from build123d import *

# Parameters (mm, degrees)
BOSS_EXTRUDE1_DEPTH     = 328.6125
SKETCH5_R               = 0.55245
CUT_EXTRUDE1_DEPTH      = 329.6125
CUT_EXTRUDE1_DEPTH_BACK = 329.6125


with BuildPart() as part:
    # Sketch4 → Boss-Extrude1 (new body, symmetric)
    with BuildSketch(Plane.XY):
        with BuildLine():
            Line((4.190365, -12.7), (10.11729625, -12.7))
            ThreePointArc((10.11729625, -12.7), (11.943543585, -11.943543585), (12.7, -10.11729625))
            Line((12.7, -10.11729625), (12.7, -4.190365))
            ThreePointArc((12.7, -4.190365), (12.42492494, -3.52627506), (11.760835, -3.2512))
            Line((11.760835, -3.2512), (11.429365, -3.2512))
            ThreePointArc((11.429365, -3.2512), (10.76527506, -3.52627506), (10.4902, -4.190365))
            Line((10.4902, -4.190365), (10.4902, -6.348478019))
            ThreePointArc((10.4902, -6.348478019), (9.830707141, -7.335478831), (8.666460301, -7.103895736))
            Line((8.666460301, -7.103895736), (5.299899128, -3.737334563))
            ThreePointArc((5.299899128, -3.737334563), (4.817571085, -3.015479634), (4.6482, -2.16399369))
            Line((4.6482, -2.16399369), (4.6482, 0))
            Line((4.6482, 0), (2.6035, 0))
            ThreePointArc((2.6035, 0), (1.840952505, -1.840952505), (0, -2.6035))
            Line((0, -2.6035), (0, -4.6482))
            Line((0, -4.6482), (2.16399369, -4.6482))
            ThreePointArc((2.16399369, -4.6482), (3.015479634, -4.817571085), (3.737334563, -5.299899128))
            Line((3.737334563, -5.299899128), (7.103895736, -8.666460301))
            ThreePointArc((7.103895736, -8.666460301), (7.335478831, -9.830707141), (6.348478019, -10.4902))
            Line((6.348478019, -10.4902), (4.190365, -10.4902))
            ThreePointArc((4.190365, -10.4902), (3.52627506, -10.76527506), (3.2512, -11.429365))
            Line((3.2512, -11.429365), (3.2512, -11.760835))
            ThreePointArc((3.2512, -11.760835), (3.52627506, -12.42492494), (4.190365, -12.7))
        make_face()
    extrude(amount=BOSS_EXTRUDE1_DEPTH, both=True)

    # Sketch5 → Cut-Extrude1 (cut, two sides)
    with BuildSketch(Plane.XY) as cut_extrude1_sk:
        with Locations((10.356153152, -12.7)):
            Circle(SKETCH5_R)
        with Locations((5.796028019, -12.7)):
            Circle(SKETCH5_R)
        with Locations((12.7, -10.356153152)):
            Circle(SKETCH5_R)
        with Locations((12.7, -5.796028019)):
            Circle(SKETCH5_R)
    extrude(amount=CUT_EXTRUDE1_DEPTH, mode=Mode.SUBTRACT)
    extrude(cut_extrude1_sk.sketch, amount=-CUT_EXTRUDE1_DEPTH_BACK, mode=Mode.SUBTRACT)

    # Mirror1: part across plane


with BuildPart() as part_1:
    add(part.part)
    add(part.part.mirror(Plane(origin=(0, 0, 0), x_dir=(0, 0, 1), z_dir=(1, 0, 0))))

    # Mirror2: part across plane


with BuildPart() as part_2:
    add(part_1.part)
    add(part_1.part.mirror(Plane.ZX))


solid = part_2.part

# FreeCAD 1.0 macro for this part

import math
import FreeCAD as App
import Part
import Sketcher
from FreeCAD import Vector
Q = App.Units.Quantity

doc = App.newDocument("Part")
params = doc.addObject("Spreadsheet::Sheet", "Params")
for row, (alias, value) in enumerate([
    ("pad1_length", "25.875 in"),
], start=1):
    params.set(f"A{row}", alias)
    params.set(f"B{row}", "=" + value)
    params.setAlias(f"B{row}", alias)

body = doc.addObject("PartDesign::Body", "Body")

# Sketch on XY plane
sketch1 = body.newObject("Sketcher::SketchObject", "Sketch")
sketch1.AttachmentSupport = (doc.getObject("XY_Plane"), [""])
sketch1.MapMode = "FlatFace"
sketch1.addGeometry([
    Part.LineSegment(Vector(4.190365, -12.7, 0), Vector(10.117296, -12.7, 0)),  # 0
    Part.ArcOfCircle(Part.Circle(Vector(10.117296, -10.117296, 0), Vector(0, 0, 1), 2.582704), math.radians(-90), math.radians(0)),  # 1
    Part.LineSegment(Vector(12.7, -10.117296, 0), Vector(12.7, -4.190365, 0)),  # 2
    Part.ArcOfCircle(Part.Circle(Vector(11.760835, -4.190365, 0), Vector(0, 0, 1), 0.939165), math.radians(0), math.radians(90)),  # 3
    Part.LineSegment(Vector(11.760835, -3.2512, 0), Vector(11.429365, -3.2512, 0)),  # 4
    Part.ArcOfCircle(Part.Circle(Vector(11.429365, -4.190365, 0), Vector(0, 0, 1), 0.939165), math.radians(90), math.radians(180)),  # 5
    Part.LineSegment(Vector(10.4902, -4.190365, 0), Vector(10.4902, -6.348478, 0)),  # 6
    Part.ArcOfCircle(Part.Circle(Vector(9.421878, -6.348478, 0), Vector(0, 0, 1), 1.068322), math.radians(-135), math.radians(0)),  # 7
    Part.LineSegment(Vector(8.66646, -7.103896, 0), Vector(5.299899, -3.737335, 0)),  # 8
    Part.ArcOfCircle(Part.Circle(Vector(6.87324, -2.163994, 0), Vector(0, 0, 1), 2.22504), math.radians(-180), math.radians(-135)),  # 9
    Part.LineSegment(Vector(4.6482, -2.163994, 0), Vector(4.6482, 0, 0)),  # 10
    Part.LineSegment(Vector(4.6482, 0, 0), Vector(2.6035, 0, 0)),  # 11
    Part.ArcOfCircle(Part.Circle(Vector(0, 0, 0), Vector(0, 0, 1), 2.6035), math.radians(-90), math.radians(0)),  # 12
    Part.LineSegment(Vector(0, -2.6035, 0), Vector(0, -4.6482, 0)),  # 13
    Part.LineSegment(Vector(0, -4.6482, 0), Vector(2.163994, -4.6482, 0)),  # 14
    Part.ArcOfCircle(Part.Circle(Vector(2.163994, -6.87324, 0), Vector(0, 0, 1), 2.22504), math.radians(45), math.radians(90)),  # 15
    Part.LineSegment(Vector(3.737335, -5.299899, 0), Vector(7.103896, -8.66646, 0)),  # 16
    Part.ArcOfCircle(Part.Circle(Vector(6.348478, -9.421878, 0), Vector(0, 0, 1), 1.068322), math.radians(-90), math.radians(45)),  # 17
    Part.LineSegment(Vector(6.348478, -10.4902, 0), Vector(4.190365, -10.4902, 0)),  # 18
    Part.ArcOfCircle(Part.Circle(Vector(4.190365, -11.429365, 0), Vector(0, 0, 1), 0.939165), math.radians(90), math.radians(180)),  # 19
    Part.LineSegment(Vector(3.2512, -11.429365, 0), Vector(3.2512, -11.760835, 0)),  # 20
    Part.ArcOfCircle(Part.Circle(Vector(4.190365, -11.760835, 0), Vector(0, 0, 1), 0.939165), math.radians(-180), math.radians(-90)),  # 21
], False)
sketch1.addConstraint([
    Sketcher.Constraint("Tangent", 0, 2, 1, 1),
    Sketcher.Constraint("Tangent", 1, 2, 2, 1),
    Sketcher.Constraint("Tangent", 2, 2, 3, 1),
    Sketcher.Constraint("Tangent", 3, 2, 4, 1),
    Sketcher.Constraint("Tangent", 4, 2, 5, 1),
    Sketcher.Constraint("Tangent", 5, 2, 6, 1),
    Sketcher.Constraint("Tangent", 6, 2, 7, 2),
    Sketcher.Constraint("Tangent", 7, 1, 8, 1),
    Sketcher.Constraint("Tangent", 8, 2, 9, 2),
    Sketcher.Constraint("Tangent", 9, 1, 10, 1),
    Sketcher.Constraint("Coincident", 10, 2, 11, 1),
    Sketcher.Constraint("Coincident", 11, 2, 12, 2),
    Sketcher.Constraint("Coincident", 12, 1, 13, 1),
    Sketcher.Constraint("Coincident", 13, 2, 14, 1),
    Sketcher.Constraint("Tangent", 14, 2, 15, 2),
    Sketcher.Constraint("Tangent", 15, 1, 16, 1),
    Sketcher.Constraint("Tangent", 16, 2, 17, 2),
    Sketcher.Constraint("Tangent", 17, 1, 18, 1),
    Sketcher.Constraint("Tangent", 18, 2, 19, 1),
    Sketcher.Constraint("Tangent", 19, 2, 20, 1),
    Sketcher.Constraint("Tangent", 20, 2, 21, 1),
    Sketcher.Constraint("Tangent", 21, 2, 0, 1),
    Sketcher.Constraint("Horizontal", 0),
    Sketcher.Constraint("Vertical", 2),
    Sketcher.Constraint("Horizontal", 4),
    Sketcher.Constraint("Vertical", 6),
    Sketcher.Constraint("Vertical", 10),
    Sketcher.Constraint("Horizontal", 11),
    Sketcher.Constraint("Vertical", 13),
    Sketcher.Constraint("Horizontal", 14),
    Sketcher.Constraint("Horizontal", 18),
    Sketcher.Constraint("Vertical", 20),
    Sketcher.Constraint("Coincident", 12, 3, -1, 1),
    Sketcher.Constraint("Equal", 3, 5),
    Sketcher.Constraint("Equal", 9, 15),
    Sketcher.Constraint("Equal", 7, 17),
    Sketcher.Constraint("Equal", 5, 19),
    Sketcher.Constraint("Equal", 19, 21),
    Sketcher.Constraint("PointOnObject", 10, 2, -1),
    Sketcher.Constraint("PointOnObject", 12, 1, -2),
    Sketcher.Constraint("Parallel", 8, 16),
    Sketcher.Constraint("Equal", 0, 2),
    Sketcher.Constraint("Equal", 18, 6),
    Sketcher.Constraint("Equal", 14, 10),
    Sketcher.Constraint("Equal", 11, 13),
    Sketcher.Constraint("Equal", 4, 20),
    Sketcher.Constraint("Equal", 8, 16),
    Sketcher.Constraint("DistanceY", 0, 2, -1, 1, Q("0.5 in")),
    Sketcher.Constraint("Radius", 9, Q("0.0876 in")),
    Sketcher.Constraint("Radius", 12, Q("0.1025 in")),
    Sketcher.Constraint("DistanceX", 9, 1, 5, 2, Q("0.23 in")),
    Sketcher.Constraint("DistanceX", 11, 2, 11, 1, Q("0.0805 in")),
    Sketcher.Constraint("DistanceY", 3, 2, -1, 1, Q("0.128 in")),
    Sketcher.Constraint("Radius", 7, Q("1.068322 mm")),
    Sketcher.Constraint("DistanceX", 17, 3, 7, 3, Q("0.121 in")),
    Sketcher.Constraint("Radius", 1, Q("2.582704 mm")),
    Sketcher.Constraint("Radius", 3, Q("0.939165 mm")),
])
pad1 = body.newObject("PartDesign::Pad", "Pad")
pad1.Profile = sketch1
pad1.setExpression("Length", "Params.pad1_length")
pad1.Midplane = True

# Sketch on XY plane
sketch2 = body.newObject("Sketcher::SketchObject", "Sketch001")
sketch2.AttachmentSupport = (doc.getObject("XY_Plane"), [""])
sketch2.MapMode = "FlatFace"
sketch2.addGeometry([
    Part.Circle(Vector(10.356153, -12.7, 0), Vector(0, 0, 1), 0.55245),
    Part.Circle(Vector(5.796028, -12.7, 0), Vector(0, 0, 1), 0.55245),
    Part.Circle(Vector(12.7, -10.356153, 0), Vector(0, 0, 1), 0.55245),
    Part.Circle(Vector(12.7, -5.796028, 0), Vector(0, 0, 1), 0.55245),
], False)
sketch2.addConstraint([
    Sketcher.Constraint("Equal", 0, 1),
    Sketcher.Constraint("Equal", 1, 2),
    Sketcher.Constraint("Equal", 2, 3),
    Sketcher.Constraint("Horizontal", 0, 3, 1, 3),
    Sketcher.Constraint("Vertical", 2, 3, 3, 3),
    Sketcher.Constraint("Diameter", 0, Q("0.0435 in")),
    Sketcher.Constraint("DistanceY", 0, 3, -1, 1, Q("0.5 in")),
    Sketcher.Constraint("DistanceX", -1, 1, 2, 3, Q("0.5 in")),
    Sketcher.Constraint("DistanceX", -1, 1, 1, 3, Q("5.796028 mm")),
    Sketcher.Constraint("DistanceY", 3, 3, -1, 1, Q("5.796028 mm")),
    Sketcher.Constraint("DistanceX", -1, 1, 0, 3, Q("10.356153 mm")),
    Sketcher.Constraint("DistanceY", 2, 3, -1, 1, Q("10.356153 mm")),
])
pocket1 = body.newObject("PartDesign::Pocket", "Pocket")
pocket1.Profile = sketch2
pocket1.Type = "ThroughAll"
pocket1.Midplane = True
body2 = doc.addObject("PartDesign::Body", "Body001")
doc.recompute()

body2.BaseFeature = body
doc.recompute()

mirroring = doc.addObject("Part::Mirroring", "Mirroring")
mirroring.Source = body
mirroring.Base = Vector(0, 0, 0)
mirroring.Normal = Vector(1, 0, 0)
body3 = doc.addObject("PartDesign::Body", "Body002")
body3.BaseFeature = mirroring
boolean = body2.newObject("PartDesign::Boolean", "Boolean")
boolean.Type = "Fuse"
boolean.addObjects([body3])
doc.recompute()
body4 = doc.addObject("PartDesign::Body", "Body003")
doc.recompute()

body4.BaseFeature = body2
doc.recompute()

mirroring2 = doc.addObject("Part::Mirroring", "Mirroring001")
mirroring2.Source = body2
mirroring2.Base = Vector(0, 0, 0)
mirroring2.Normal = Vector(0, 1, 0)
body5 = doc.addObject("PartDesign::Body", "Body004")
body5.BaseFeature = mirroring2
boolean2 = body4.newObject("PartDesign::Boolean", "Boolean001")
boolean2.Type = "Fuse"
boolean2.addObjects([body5])
doc.recompute()
mirroring.Visibility = False
mirroring2.Visibility = False

doc.recompute()
